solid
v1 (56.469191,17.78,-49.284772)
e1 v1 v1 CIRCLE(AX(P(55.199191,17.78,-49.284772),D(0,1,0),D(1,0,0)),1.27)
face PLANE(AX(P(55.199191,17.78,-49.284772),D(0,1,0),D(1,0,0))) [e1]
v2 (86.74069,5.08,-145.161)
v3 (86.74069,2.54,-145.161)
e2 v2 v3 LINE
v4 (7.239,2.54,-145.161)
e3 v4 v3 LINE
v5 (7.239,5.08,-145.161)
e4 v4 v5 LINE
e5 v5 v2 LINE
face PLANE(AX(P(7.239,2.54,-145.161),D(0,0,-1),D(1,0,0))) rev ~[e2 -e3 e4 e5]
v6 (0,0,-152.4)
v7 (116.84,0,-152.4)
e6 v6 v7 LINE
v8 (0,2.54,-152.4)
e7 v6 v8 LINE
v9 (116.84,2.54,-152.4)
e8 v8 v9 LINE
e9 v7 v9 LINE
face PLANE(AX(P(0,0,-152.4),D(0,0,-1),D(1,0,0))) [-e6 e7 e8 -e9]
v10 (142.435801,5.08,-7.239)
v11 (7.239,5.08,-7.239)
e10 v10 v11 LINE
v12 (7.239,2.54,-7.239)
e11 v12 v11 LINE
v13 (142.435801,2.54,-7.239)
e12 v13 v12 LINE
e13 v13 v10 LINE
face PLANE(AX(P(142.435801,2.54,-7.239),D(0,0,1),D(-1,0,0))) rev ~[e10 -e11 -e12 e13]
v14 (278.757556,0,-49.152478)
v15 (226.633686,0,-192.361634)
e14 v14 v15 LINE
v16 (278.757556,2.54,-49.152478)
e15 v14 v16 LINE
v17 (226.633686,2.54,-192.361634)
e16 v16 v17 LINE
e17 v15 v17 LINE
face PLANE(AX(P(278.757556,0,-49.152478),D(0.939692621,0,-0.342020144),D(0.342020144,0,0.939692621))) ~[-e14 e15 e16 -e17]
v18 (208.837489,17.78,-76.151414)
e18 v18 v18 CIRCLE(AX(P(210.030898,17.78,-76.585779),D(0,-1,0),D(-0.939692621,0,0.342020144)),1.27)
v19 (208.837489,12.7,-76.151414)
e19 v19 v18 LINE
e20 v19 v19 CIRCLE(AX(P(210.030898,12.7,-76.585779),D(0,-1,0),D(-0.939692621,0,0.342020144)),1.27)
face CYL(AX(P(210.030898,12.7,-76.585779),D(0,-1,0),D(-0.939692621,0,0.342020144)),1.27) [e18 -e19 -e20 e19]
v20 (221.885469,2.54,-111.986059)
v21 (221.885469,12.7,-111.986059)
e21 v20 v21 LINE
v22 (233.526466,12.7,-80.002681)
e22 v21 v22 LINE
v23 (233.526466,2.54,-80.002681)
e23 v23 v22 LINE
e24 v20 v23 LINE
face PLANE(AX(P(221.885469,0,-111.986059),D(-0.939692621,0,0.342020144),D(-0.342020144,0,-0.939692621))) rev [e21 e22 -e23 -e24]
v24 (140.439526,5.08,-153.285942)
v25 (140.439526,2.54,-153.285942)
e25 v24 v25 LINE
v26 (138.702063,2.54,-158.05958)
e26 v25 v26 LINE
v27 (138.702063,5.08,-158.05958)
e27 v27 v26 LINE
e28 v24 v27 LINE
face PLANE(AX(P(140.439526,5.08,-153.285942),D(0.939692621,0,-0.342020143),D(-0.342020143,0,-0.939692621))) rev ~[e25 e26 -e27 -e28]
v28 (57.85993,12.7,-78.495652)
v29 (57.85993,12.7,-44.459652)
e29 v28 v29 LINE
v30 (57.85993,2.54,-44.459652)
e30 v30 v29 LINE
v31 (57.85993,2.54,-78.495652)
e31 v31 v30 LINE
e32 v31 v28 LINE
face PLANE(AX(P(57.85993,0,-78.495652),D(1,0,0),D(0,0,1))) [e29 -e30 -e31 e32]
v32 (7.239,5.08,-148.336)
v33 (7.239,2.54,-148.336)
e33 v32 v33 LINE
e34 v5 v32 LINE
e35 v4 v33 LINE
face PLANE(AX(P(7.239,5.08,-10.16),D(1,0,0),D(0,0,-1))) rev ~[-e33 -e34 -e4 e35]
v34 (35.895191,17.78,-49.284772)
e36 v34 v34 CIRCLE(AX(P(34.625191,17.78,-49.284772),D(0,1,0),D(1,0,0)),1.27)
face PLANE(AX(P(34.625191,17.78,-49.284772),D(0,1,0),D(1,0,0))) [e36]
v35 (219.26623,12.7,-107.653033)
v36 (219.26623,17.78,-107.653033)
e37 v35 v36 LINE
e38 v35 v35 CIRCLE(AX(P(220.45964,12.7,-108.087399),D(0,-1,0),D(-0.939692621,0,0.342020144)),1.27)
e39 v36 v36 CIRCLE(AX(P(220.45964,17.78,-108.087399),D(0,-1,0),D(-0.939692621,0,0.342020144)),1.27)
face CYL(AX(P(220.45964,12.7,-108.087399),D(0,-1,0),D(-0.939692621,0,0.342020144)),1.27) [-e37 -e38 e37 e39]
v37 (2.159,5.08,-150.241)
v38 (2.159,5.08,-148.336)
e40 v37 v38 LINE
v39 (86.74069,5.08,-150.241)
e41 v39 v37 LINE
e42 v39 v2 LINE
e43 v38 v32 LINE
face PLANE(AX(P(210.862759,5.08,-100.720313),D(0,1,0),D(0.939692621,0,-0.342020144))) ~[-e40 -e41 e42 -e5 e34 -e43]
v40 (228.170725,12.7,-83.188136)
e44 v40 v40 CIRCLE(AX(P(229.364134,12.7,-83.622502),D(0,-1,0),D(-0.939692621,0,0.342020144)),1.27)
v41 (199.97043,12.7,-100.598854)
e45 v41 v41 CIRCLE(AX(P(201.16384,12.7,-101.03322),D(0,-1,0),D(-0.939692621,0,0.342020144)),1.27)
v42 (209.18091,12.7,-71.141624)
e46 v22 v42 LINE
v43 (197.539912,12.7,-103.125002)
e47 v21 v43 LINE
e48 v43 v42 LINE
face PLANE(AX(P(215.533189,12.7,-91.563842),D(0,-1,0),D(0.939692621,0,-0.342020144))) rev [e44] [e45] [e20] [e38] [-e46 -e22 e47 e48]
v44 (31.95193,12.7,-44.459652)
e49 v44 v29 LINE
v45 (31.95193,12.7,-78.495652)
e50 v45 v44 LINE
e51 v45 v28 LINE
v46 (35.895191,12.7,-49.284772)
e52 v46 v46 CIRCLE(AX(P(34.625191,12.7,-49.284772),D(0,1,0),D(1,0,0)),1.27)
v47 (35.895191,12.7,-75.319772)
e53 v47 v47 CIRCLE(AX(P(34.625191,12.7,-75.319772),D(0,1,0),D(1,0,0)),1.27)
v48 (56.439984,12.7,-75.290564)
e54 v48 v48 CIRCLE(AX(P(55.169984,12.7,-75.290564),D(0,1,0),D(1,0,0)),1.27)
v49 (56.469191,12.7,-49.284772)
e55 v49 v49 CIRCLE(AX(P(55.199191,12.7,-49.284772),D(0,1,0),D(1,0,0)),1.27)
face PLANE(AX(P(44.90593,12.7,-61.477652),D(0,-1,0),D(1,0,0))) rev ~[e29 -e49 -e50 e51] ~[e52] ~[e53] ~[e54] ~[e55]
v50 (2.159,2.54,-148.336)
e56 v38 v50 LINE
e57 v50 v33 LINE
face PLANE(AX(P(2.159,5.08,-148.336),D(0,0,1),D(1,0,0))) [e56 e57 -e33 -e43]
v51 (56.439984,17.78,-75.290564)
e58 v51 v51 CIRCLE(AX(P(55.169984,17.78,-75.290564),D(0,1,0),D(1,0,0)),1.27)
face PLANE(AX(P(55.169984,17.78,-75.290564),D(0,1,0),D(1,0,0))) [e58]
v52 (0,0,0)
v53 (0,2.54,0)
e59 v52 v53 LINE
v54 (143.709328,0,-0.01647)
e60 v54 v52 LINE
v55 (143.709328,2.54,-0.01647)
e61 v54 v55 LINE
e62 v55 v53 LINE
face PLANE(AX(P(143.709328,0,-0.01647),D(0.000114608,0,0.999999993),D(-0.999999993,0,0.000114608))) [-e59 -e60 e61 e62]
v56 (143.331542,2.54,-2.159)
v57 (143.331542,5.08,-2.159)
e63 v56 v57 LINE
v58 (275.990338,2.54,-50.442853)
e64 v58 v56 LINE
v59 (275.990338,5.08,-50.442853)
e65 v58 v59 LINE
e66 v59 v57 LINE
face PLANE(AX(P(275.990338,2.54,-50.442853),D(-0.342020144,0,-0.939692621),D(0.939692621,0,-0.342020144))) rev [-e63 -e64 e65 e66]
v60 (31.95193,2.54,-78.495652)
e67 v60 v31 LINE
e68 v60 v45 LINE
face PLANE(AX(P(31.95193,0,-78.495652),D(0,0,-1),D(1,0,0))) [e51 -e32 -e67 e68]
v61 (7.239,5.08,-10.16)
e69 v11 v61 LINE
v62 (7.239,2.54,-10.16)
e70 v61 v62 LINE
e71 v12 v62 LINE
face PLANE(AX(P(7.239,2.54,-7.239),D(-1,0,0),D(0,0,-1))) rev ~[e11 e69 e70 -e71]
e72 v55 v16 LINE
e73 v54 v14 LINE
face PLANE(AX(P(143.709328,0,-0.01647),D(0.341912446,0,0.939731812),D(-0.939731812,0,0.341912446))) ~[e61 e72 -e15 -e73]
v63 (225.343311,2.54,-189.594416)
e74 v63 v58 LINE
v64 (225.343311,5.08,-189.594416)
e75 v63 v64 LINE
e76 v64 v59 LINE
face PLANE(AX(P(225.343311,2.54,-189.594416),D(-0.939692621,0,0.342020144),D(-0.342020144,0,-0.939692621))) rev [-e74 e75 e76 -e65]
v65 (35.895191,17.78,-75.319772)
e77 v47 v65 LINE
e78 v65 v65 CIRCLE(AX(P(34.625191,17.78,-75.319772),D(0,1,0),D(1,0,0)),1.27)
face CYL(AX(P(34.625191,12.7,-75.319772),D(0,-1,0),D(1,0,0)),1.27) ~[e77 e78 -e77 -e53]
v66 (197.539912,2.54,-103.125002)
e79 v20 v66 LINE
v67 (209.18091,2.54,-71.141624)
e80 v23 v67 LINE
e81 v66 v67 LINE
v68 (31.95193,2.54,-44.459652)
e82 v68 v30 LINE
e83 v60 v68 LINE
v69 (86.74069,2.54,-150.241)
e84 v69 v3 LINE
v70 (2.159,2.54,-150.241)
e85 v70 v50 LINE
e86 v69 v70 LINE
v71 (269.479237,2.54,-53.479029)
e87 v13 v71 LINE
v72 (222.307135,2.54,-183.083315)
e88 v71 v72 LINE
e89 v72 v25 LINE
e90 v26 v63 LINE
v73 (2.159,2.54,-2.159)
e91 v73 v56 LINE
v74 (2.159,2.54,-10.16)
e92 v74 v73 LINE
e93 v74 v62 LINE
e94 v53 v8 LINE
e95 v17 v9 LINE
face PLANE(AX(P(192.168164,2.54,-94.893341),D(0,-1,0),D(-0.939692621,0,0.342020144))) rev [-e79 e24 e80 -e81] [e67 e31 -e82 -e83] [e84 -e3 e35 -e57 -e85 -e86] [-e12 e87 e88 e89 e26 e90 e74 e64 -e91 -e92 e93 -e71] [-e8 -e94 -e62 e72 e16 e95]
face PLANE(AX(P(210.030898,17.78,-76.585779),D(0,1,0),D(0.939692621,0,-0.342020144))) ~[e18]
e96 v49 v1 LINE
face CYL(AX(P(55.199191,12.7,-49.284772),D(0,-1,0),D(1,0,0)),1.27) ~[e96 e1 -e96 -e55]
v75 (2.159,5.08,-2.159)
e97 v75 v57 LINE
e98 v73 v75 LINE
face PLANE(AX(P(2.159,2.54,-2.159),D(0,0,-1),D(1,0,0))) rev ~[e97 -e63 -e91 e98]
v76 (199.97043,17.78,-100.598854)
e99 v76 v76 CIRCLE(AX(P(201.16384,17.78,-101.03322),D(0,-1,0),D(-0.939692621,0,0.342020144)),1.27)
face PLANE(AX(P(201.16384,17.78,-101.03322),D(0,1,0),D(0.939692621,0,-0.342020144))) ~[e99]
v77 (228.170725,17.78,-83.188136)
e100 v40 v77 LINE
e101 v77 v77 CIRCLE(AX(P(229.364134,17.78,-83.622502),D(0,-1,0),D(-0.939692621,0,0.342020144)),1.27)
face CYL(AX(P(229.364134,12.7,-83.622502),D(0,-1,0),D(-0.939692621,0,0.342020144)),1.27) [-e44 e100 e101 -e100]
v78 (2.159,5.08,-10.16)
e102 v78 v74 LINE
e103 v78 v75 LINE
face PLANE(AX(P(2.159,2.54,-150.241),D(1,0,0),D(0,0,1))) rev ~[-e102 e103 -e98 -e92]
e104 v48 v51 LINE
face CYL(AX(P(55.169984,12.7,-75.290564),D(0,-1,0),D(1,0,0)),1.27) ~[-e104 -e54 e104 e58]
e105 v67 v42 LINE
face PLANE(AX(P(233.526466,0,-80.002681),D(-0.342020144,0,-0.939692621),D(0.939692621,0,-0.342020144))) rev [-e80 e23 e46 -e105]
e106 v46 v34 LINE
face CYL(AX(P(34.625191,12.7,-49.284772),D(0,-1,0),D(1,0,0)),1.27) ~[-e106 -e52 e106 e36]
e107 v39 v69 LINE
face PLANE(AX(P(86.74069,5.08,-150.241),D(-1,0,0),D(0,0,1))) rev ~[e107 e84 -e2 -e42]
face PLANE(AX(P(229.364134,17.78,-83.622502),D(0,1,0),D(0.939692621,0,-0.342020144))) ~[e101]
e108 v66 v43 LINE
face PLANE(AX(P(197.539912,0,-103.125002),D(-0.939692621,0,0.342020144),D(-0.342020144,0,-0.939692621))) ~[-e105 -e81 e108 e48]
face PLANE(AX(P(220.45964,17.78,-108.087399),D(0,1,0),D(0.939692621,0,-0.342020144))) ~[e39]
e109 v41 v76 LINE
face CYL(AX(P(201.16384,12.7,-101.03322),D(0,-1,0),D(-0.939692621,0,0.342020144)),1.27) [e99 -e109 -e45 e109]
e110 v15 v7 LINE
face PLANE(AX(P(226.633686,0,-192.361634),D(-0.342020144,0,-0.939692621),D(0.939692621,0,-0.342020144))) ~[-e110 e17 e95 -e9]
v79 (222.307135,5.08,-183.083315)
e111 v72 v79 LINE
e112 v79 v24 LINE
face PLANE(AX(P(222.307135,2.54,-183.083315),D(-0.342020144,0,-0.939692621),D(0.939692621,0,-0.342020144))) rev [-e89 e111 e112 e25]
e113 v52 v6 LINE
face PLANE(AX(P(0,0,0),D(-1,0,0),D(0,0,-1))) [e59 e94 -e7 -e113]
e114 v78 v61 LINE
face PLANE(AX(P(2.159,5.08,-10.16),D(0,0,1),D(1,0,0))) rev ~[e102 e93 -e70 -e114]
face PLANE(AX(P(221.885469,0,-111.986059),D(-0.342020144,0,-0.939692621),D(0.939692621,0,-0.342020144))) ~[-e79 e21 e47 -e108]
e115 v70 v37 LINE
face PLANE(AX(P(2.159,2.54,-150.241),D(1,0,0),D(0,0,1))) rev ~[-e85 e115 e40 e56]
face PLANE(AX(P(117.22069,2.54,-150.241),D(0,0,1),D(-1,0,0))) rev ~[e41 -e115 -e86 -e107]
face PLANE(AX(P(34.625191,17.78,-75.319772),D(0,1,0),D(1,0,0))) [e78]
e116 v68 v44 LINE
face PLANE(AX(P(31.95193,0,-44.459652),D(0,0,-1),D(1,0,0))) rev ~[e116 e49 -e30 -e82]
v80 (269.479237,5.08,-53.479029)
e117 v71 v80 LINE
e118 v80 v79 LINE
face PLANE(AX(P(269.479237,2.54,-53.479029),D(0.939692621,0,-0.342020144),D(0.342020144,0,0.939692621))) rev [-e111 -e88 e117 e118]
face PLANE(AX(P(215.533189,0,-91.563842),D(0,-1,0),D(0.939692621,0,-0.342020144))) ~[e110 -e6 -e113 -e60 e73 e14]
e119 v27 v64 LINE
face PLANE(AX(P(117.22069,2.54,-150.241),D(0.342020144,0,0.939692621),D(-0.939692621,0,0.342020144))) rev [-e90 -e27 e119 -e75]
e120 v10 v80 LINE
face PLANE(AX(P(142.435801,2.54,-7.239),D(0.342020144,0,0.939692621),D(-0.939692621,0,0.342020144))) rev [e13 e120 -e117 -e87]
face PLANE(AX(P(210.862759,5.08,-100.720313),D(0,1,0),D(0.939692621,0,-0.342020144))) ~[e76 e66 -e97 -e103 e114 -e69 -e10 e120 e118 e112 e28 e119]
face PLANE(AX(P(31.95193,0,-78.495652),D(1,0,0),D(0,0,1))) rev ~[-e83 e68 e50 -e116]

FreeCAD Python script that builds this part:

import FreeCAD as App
import Part
import Sketcher

V = App.Vector
Q = App.Units.Quantity


def add_polygon(sketch, points):
    """Adds a closed chain of lines whose ends are joined by coincident constraints."""
    first, n = sketch.GeometryCount, len(points)
    for a, b in zip(points, points[1:] + points[:1]):
        sketch.addGeometry(Part.LineSegment(App.Vector(*a, 0), App.Vector(*b, 0)), False)
    for i in range(n):
        sketch.addConstraint(Sketcher.Constraint("Coincident", first + i, 2, first + (i + 1) % n, 1))

doc = App.newDocument("Part")
body = doc.addObject("PartDesign::Body", "Body")

# Sketch on XZ plane
sketch1 = body.newObject("Sketcher::SketchObject", "Sketch")
sketch1.AttachmentSupport = (doc.getObject("XZ_Plane"), [""])
sketch1.MapMode = "FlatFace"
add_polygon(sketch1, [(0, -152.4), (0, 0), (143.709328, -0.01647), (116.84, -152.4)])  # lines 0-3
sketch1.addConstraint([
    Sketcher.Constraint("Vertical", 0),
    Sketcher.Constraint("Horizontal", 3),
    Sketcher.Constraint("Coincident", 0, 2, -1, 1),
    Sketcher.Constraint("DistanceY", 0, 1, 0, 2, Q("6 in")),
    Sketcher.Constraint("DistanceX", 3, 2, 3, 1, Q("4.6 in")),
    Sketcher.Constraint("Angle", 2, Q("-100 deg")),
    Sketcher.Constraint("Distance", 1, Q("143.709329 mm")),
])
pad1 = body.newObject("PartDesign::Pad", "Pad")
pad1.Profile = sketch1
pad1.Length = Q("0.1 in")
pad1.Reversed = True

# Sketch on XZ plane
sketch2 = body.newObject("Sketcher::SketchObject", "Sketch001")
sketch2.AttachmentSupport = (doc.getObject("XZ_Plane"), [""])
sketch2.MapMode = "FlatFace"
sketch2.AttachmentOffset = App.Placement(V(0, 0, -0.1 * 25.4), App.Rotation())
add_polygon(sketch2, [(117.22069, -150.241), (2.159, -150.241), (2.159, -2.159), (143.331542, -2.159), (142.435801, -7.239), (7.239, -7.239), (7.239, -145.161), (118.116431, -145.161)])  # lines 0-7
sketch2.addConstraint([
    Sketcher.Constraint("Horizontal", 0),
    Sketcher.Constraint("Vertical", 1),
    Sketcher.Constraint("Horizontal", 2),
    Sketcher.Constraint("Horizontal", 4),
    Sketcher.Constraint("Vertical", 5),
    Sketcher.Constraint("Horizontal", 6),
    Sketcher.Constraint("Parallel", 3, 7),
    Sketcher.Constraint("Equal", 3, 7),
    Sketcher.Constraint("Angle", 3, Q("-100 deg")),
    Sketcher.Constraint("DistanceY", 1, 1, 1, 2, Q("5.83 in")),
    Sketcher.Constraint("DistanceY", 5, 2, 5, 1, Q("5.43 in")),
    Sketcher.Constraint("DistanceX", 1, 2, 4, 2, Q("0.2 in")),
    Sketcher.Constraint("DistanceX", -1, 1, 0, 2, Q("0.085 in")),
    Sketcher.Constraint("DistanceY", 0, 2, -1, 1, Q("5.915 in")),
    Sketcher.Constraint("DistanceX", 4, 2, 4, 1, Q("135.196801 mm")),
    Sketcher.Constraint("DistanceX", 0, 2, 0, 1, Q("115.06169 mm")),
])
pad2 = body.newObject("PartDesign::Pad", "Pad001")
pad2.Profile = sketch2
pad2.Length = Q("0.1 in")
pad2.Reversed = True

# Sketch on XZ plane
sketch3 = body.newObject("Sketcher::SketchObject", "Sketch002")
sketch3.AttachmentSupport = (doc.getObject("XZ_Plane"), [""])
sketch3.MapMode = "FlatFace"
add_polygon(sketch3, [(31.95193, -44.459652), (31.95193, -78.495652), (57.85993, -78.495652), (57.85993, -44.459652)])  # lines 0-3
sketch3.addConstraint([
    Sketcher.Constraint("Vertical", 0),
    Sketcher.Constraint("Horizontal", 1),
    Sketcher.Constraint("Vertical", 2),
    Sketcher.Constraint("Horizontal", 3),
    Sketcher.Constraint("DistanceX", 1, 1, 1, 2, Q("1.02 in")),
    Sketcher.Constraint("DistanceY", 0, 2, 0, 1, Q("1.34 in")),
    Sketcher.Constraint("DistanceX", -1, 1, 0, 2, Q("31.95193 mm")),
    Sketcher.Constraint("DistanceY", 2, 2, -1, 1, Q("44.459652 mm")),
])
pad3 = body.newObject("PartDesign::Pad", "Pad002")
pad3.Profile = sketch3
pad3.Length = Q("0.5 in")
pad3.Reversed = True

# Sketch on XZ plane
sketch4 = body.newObject("Sketcher::SketchObject", "Sketch003")
sketch4.AttachmentSupport = (doc.getObject("XZ_Plane"), [""])
sketch4.MapMode = "FlatFace"
sketch4.AttachmentOffset = App.Placement(V(0, 0, -0.5 * 25.4), App.Rotation())
sketch4.addGeometry([
    Part.Circle(V(34.625191, -75.319772, 0), V(0, 0, 1), 1.27),
    Part.Circle(V(55.169984, -75.290564, 0), V(0, 0, 1), 1.27),
    Part.Circle(V(55.199191, -49.284772, 0), V(0, 0, 1), 1.27),
    Part.Circle(V(34.625191, -49.284772, 0), V(0, 0, 1), 1.27),
], False)
sketch4.addConstraint([
    Sketcher.Constraint("Equal", 0, 1),
    Sketcher.Constraint("Equal", 1, 2),
    Sketcher.Constraint("Equal", 2, 3),
    Sketcher.Constraint("Horizontal", 2, 3, 3, 3),
    Sketcher.Constraint("Vertical", 0, 3, 3, 3),
    Sketcher.Constraint("Diameter", 0, Q("0.1 in")),
    Sketcher.Constraint("DistanceX", 0, 3, 2, 3, Q("0.81 in")),
    Sketcher.Constraint("DistanceY", 0, 3, 2, 3, Q("1.025 in")),
    Sketcher.Constraint("DistanceX", -1, 1, 0, 3, Q("34.625191 mm")),
    Sketcher.Constraint("DistanceY", 0, 3, -1, 1, Q("75.319772 mm")),
    Sketcher.Constraint("DistanceX", -1, 1, 1, 3, Q("55.169984 mm")),
    Sketcher.Constraint("DistanceY", 1, 3, -1, 1, Q("75.290564 mm")),
])
pad4 = body.newObject("PartDesign::Pad", "Pad003")
pad4.Profile = sketch4
pad4.Length = Q("0.2 in")
pad4.Reversed = True
body2 = doc.addObject("PartDesign::Body", "Body001")
doc.recompute()

body2.BaseFeature = body
doc.recompute()

mirroring = doc.addObject("Part::Mirroring", "Mirroring")
mirroring.Source = body
mirroring.Base = V(116.84, 2.54, -152.4)
mirroring.Normal = V(0.984807753, 0, -0.173648178)
body3 = doc.addObject("PartDesign::Body", "Body002")
body3.BaseFeature = mirroring
boolean = body2.newObject("PartDesign::Boolean", "Boolean")
boolean.Type = "Fuse"
boolean.addObjects([body3])
doc.recompute()

# Sketch on XZ plane
sketch5 = body2.newObject("Sketcher::SketchObject", "Sketch004")
sketch5.AttachmentSupport = (doc.getObject("XZ_Plane001"), [""])
sketch5.MapMode = "FlatFace"
sketch5.AttachmentOffset = App.Placement(V(0, 0, -0.2 * 25.4), App.Rotation())
add_polygon(sketch5, [(2.159, -148.336), (2.159, -10.16), (7.239, -10.16), (7.239, -148.336)])  # lines 0-3
sketch5.addConstraint([
    Sketcher.Constraint("Vertical", 0),
    Sketcher.Constraint("Horizontal", 1),
    Sketcher.Constraint("Vertical", 2),
    Sketcher.Constraint("Horizontal", 3),
    Sketcher.Constraint("DistanceX", 1, 1, 1, 2, Q("0.2 in")),
    Sketcher.Constraint("DistanceY", 0, 1, 0, 2, Q("5.44 in")),
    Sketcher.Constraint("DistanceY", 0, 2, -1, 1, Q("0.4 in")),
    Sketcher.Constraint("DistanceX", -1, 1, 0, 2, Q("0.085 in")),
])
pocket1 = body2.newObject("PartDesign::Pocket", "Pocket")
pocket1.Profile = sketch5
pocket1.Length = Q("0.1 in")
pocket1.Reversed = True

# Sketch on XZ plane
sketch6 = body2.newObject("Sketcher::SketchObject", "Sketch005")
sketch6.AttachmentSupport = (doc.getObject("XZ_Plane001"), [""])
sketch6.MapMode = "FlatFace"
sketch6.AttachmentOffset = App.Placement(V(0, 0, -0.2 * 25.4), App.Rotation())
add_polygon(sketch6, [(86.74069, -150.241), (86.74069, -145.161), (118.116431, -145.161), (140.439526, -153.285942), (138.702063, -158.05958), (117.22069, -150.241)])  # lines 0-5
sketch6.addConstraint([
    Sketcher.Constraint("Vertical", 0),
    Sketcher.Constraint("Horizontal", 1),
    Sketcher.Constraint("Horizontal", 5),
    Sketcher.Constraint("Perpendicular", 2, 3),
    Sketcher.Constraint("Perpendicular", 3, 4),
    Sketcher.Constraint("DistanceX", 5, 2, 5, 1, Q("1.2 in")),
    Sketcher.Constraint("DistanceY", 0, 1, 0, 2, Q("0.2 in")),
    Sketcher.Constraint("Angle", 2, Q("-20 deg")),
    Sketcher.Constraint("Distance", 3, Q("0.2 in")),
    Sketcher.Constraint("Distance", 4, Q("0.9 in")),
    Sketcher.Constraint("DistanceY", 0, 2, -1, 1, Q("5.715 in")),
    Sketcher.Constraint("DistanceX", -1, 1, 0, 2, Q("86.74069 mm")),
])
pocket2 = body2.newObject("PartDesign::Pocket", "Pocket001")
pocket2.Profile = sketch6
pocket2.Length = Q("0.1 in")
pocket2.Reversed = True
mirroring.Visibility = False

doc.recompute()
